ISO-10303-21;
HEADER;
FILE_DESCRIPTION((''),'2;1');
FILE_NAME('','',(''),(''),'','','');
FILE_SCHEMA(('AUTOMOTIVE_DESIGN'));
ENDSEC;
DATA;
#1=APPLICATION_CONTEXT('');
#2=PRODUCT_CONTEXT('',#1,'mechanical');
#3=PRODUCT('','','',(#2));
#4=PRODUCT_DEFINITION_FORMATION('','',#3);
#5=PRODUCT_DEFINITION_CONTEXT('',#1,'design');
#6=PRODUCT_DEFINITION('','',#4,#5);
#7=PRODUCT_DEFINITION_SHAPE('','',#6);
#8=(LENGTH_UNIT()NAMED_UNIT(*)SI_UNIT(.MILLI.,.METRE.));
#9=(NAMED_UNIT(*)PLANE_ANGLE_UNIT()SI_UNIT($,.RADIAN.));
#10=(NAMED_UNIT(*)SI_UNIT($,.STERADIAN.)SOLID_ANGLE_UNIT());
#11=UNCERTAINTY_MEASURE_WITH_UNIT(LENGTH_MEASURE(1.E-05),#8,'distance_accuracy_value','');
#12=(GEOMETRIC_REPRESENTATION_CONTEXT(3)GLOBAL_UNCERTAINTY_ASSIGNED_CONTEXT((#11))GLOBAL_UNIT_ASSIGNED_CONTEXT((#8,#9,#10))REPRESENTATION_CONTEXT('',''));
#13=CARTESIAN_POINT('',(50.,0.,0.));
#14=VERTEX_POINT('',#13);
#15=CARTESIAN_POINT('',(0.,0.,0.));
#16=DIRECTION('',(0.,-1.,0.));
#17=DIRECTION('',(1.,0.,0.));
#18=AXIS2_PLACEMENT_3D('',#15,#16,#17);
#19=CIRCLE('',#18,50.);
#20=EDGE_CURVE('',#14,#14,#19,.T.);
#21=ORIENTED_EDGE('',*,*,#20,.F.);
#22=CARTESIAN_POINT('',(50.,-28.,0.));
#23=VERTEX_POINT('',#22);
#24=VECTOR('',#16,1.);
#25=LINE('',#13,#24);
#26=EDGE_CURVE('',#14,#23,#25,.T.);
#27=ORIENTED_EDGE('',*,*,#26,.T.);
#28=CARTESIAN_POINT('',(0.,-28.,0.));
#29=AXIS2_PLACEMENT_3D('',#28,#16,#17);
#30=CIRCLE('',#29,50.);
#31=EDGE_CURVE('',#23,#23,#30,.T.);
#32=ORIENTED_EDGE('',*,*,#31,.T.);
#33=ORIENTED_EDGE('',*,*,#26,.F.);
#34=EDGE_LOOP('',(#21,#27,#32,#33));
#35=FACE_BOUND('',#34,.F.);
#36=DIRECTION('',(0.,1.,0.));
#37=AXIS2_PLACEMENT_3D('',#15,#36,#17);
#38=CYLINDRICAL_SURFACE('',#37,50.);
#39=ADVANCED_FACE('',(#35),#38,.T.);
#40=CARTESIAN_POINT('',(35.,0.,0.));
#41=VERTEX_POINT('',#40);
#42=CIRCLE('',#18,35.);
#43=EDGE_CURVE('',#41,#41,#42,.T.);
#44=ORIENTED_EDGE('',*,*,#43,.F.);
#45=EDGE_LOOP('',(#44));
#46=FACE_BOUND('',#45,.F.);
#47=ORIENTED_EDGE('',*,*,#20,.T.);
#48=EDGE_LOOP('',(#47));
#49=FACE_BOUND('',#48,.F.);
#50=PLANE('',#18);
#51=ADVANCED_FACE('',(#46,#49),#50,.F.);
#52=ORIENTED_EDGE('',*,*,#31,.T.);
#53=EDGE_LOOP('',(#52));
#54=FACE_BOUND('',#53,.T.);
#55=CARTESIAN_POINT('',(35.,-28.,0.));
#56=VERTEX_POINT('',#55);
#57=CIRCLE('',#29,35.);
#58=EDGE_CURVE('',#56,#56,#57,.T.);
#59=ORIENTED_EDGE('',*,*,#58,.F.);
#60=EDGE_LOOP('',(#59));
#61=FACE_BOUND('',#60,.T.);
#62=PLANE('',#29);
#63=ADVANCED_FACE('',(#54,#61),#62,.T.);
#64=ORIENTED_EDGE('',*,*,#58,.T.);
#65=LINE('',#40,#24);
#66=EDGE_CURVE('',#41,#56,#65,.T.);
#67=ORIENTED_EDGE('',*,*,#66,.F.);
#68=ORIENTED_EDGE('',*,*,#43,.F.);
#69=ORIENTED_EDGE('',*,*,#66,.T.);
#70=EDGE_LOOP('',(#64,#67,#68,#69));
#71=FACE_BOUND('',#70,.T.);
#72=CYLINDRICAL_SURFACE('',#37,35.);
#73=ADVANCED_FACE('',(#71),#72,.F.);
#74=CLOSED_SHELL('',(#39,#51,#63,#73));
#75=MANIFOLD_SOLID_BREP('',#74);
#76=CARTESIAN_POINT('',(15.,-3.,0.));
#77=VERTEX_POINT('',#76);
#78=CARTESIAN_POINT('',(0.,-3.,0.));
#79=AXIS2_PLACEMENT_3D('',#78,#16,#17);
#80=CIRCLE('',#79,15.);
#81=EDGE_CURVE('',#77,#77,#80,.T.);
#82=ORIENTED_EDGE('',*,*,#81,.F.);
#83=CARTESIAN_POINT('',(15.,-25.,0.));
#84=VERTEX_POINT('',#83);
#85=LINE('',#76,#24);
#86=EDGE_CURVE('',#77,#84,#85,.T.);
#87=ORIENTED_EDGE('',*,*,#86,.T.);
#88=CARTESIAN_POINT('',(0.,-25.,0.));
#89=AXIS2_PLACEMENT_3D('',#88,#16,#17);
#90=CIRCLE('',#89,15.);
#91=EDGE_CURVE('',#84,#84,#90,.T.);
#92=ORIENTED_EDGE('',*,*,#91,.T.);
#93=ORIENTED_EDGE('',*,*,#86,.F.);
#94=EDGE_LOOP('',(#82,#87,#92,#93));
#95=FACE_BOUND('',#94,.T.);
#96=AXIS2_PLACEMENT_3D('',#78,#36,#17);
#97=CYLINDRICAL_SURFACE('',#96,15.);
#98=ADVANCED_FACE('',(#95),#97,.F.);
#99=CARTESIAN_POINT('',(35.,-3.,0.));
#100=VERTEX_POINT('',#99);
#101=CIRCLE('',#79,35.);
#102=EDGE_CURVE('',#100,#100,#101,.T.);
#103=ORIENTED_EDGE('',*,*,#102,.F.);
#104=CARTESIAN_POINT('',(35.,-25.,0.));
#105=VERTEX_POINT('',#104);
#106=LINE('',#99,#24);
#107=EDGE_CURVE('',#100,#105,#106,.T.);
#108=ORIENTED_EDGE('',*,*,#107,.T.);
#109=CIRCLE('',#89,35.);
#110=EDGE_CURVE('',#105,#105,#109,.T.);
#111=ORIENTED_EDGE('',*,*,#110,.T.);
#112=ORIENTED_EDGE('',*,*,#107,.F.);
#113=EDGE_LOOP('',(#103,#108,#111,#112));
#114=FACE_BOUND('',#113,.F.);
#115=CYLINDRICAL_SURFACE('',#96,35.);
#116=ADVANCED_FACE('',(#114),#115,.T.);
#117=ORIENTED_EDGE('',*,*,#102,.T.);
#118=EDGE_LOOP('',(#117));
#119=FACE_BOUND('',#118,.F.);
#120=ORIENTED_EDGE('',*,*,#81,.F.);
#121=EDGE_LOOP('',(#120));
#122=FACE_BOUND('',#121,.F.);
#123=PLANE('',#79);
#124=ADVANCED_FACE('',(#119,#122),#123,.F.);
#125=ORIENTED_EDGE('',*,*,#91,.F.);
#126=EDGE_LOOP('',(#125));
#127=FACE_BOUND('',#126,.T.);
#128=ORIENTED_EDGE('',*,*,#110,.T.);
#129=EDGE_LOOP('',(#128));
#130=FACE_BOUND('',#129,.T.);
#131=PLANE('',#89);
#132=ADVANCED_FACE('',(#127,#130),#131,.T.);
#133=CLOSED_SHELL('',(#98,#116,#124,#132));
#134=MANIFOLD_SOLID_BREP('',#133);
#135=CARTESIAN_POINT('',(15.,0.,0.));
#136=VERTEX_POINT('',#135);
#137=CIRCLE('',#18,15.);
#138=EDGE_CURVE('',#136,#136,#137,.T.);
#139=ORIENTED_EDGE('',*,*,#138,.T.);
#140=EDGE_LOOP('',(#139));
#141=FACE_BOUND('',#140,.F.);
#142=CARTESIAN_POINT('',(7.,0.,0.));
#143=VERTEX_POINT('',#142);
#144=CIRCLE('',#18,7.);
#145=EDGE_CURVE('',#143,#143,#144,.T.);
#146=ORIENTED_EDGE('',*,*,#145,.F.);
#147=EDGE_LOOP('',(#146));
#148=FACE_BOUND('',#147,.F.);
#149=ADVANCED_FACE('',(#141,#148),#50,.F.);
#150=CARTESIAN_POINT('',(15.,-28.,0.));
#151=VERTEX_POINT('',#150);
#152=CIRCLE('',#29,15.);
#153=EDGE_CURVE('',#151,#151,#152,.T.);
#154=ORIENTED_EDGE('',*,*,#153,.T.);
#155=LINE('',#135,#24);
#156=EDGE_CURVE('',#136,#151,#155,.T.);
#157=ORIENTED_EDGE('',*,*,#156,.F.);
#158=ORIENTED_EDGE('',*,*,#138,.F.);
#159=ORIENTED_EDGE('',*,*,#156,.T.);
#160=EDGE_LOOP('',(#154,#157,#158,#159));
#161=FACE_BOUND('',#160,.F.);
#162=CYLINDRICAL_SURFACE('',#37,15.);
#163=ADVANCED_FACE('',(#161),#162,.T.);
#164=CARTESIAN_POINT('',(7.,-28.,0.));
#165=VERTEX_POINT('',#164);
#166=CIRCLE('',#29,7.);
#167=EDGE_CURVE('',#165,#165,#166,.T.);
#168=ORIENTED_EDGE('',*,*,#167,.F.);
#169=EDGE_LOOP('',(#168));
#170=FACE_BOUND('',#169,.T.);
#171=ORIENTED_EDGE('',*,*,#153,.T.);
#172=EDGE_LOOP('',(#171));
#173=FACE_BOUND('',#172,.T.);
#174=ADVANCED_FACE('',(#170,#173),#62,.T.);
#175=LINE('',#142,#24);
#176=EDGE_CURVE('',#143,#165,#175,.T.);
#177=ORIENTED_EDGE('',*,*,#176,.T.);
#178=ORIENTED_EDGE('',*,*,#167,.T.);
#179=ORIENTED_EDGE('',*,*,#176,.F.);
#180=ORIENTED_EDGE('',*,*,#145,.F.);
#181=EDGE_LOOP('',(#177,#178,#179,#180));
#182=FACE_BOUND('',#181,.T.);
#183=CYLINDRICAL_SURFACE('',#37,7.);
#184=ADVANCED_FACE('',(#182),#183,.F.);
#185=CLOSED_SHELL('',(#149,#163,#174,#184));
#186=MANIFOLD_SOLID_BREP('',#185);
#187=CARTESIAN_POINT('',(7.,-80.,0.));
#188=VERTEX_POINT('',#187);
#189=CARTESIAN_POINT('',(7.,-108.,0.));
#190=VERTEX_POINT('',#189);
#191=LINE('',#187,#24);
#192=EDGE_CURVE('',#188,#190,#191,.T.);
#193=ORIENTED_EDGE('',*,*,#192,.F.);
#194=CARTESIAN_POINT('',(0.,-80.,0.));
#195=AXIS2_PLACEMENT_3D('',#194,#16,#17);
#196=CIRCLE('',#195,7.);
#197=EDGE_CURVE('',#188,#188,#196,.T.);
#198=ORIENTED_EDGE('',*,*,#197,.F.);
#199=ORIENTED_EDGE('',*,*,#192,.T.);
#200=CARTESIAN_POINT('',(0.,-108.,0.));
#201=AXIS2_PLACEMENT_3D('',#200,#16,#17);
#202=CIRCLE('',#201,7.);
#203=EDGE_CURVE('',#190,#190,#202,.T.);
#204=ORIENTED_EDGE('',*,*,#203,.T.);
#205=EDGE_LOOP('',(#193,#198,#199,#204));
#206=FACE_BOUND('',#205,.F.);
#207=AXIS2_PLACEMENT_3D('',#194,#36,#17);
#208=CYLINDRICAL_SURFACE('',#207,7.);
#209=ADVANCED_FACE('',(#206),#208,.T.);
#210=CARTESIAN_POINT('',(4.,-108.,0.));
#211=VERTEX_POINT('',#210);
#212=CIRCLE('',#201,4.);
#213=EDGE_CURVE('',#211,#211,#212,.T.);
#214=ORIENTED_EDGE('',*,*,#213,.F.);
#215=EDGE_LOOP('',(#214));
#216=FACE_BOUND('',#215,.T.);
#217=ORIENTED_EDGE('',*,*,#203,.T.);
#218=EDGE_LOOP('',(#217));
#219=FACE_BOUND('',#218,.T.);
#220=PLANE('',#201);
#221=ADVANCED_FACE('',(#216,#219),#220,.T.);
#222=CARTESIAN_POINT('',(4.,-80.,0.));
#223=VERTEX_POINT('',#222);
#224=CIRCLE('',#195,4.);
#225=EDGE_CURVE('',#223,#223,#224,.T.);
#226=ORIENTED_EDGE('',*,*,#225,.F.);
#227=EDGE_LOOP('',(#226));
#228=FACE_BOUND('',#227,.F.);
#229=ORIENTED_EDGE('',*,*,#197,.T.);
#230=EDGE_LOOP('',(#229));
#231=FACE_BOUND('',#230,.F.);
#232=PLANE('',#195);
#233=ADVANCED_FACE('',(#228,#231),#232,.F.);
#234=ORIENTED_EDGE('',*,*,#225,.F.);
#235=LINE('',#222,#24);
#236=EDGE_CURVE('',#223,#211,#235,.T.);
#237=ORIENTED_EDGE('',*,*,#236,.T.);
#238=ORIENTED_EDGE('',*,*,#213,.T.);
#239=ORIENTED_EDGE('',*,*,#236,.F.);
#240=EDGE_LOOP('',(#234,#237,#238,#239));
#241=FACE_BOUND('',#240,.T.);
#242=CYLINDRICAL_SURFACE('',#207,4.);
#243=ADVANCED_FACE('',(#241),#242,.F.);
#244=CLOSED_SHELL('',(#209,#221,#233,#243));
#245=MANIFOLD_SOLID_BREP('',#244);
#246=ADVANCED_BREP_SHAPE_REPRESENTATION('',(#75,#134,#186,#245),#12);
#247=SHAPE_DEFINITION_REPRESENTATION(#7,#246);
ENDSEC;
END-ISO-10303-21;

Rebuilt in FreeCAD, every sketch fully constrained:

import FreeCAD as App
import Part
import Sketcher

V = App.Vector
Q = App.Units.Quantity

doc = App.newDocument("Part")
body = doc.addObject("PartDesign::Body", "Body")

# Sketch on XZ plane
sketch1 = body.newObject("Sketcher::SketchObject", "Sketch")
sketch1.AttachmentSupport = (doc.getObject("XZ_Plane"), [""])
sketch1.MapMode = "FlatFace"
sketch1.addGeometry(Part.Circle(V(0, 0, 0), V(0, 0, 1), 15), False)
sketch1.addGeometry(Part.Circle(V(0, 0, 0), V(0, 0, 1), 7), False)
sketch1.addConstraint(Sketcher.Constraint("Coincident", 0, 3, -1, 1))
sketch1.addConstraint(Sketcher.Constraint("Coincident", 1, 3, -1, 1))
sketch1.addConstraint(Sketcher.Constraint("Diameter", 0, Q("30 mm")))
sketch1.addConstraint(Sketcher.Constraint("Diameter", 1, Q("14 mm")))
pad1 = body.newObject("PartDesign::Pad", "Pad")
pad1.Profile = sketch1
pad1.Length = 28
body2 = doc.addObject("PartDesign::Body", "Body001")

# Sketch on XZ plane
sketch2 = body2.newObject("Sketcher::SketchObject", "Sketch001")
sketch2.AttachmentSupport = (doc.getObject("XZ_Plane001"), [""])
sketch2.MapMode = "FlatFace"
sketch2.addGeometry(Part.Circle(V(0, 0, 0), V(0, 0, 1), 50), False)
sketch2.addGeometry(Part.Circle(V(0, 0, 0), V(0, 0, 1), 35), False)
sketch2.addConstraint(Sketcher.Constraint("Coincident", 0, 3, -1, 1))
sketch2.addConstraint(Sketcher.Constraint("Coincident", 1, 3, -1, 1))
sketch2.addConstraint(Sketcher.Constraint("Diameter", 0, Q("100 mm")))
sketch2.addConstraint(Sketcher.Constraint("Diameter", 1, Q("70 mm")))
pad2 = body2.newObject("PartDesign::Pad", "Pad001")
pad2.Profile = sketch2
pad2.Length = 28
body3 = doc.addObject("PartDesign::Body", "Body002")

# Sketch on XZ plane
sketch3 = body3.newObject("Sketcher::SketchObject", "Sketch002")
sketch3.AttachmentSupport = (doc.getObject("XZ_Plane002"), [""])
sketch3.MapMode = "FlatFace"
sketch3.AttachmentOffset = App.Placement(V(0, 0, 3), App.Rotation())
sketch3.addGeometry(Part.Circle(V(0, 0, 0), V(0, 0, 1), 35), False)
sketch3.addGeometry(Part.Circle(V(0, 0, 0), V(0, 0, 1), 15), False)
sketch3.addConstraint(Sketcher.Constraint("Coincident", 0, 3, -1, 1))
sketch3.addConstraint(Sketcher.Constraint("Coincident", 1, 3, -1, 1))
sketch3.addConstraint(Sketcher.Constraint("Diameter", 0, Q("70 mm")))
sketch3.addConstraint(Sketcher.Constraint("Diameter", 1, Q("30 mm")))
pad3 = body3.newObject("PartDesign::Pad", "Pad002")
pad3.Profile = sketch3
pad3.Length = 22
body4 = doc.addObject("PartDesign::Body", "Body003")

# Sketch on XZ plane
sketch4 = body4.newObject("Sketcher::SketchObject", "Sketch003")
sketch4.AttachmentSupport = (doc.getObject("XZ_Plane003"), [""])
sketch4.MapMode = "FlatFace"
sketch4.AttachmentOffset = App.Placement(V(0, 0, 80), App.Rotation())
sketch4.addGeometry(Part.Circle(V(0, 0, 0), V(0, 0, 1), 7), False)
sketch4.addGeometry(Part.Circle(V(0, 0, 0), V(0, 0, 1), 4), False)
sketch4.addConstraint(Sketcher.Constraint("Coincident", 0, 3, -1, 1))
sketch4.addConstraint(Sketcher.Constraint("Coincident", 1, 3, -1, 1))
sketch4.addConstraint(Sketcher.Constraint("Diameter", 0, Q("14 mm")))
sketch4.addConstraint(Sketcher.Constraint("Diameter", 1, Q("8 mm")))
pad4 = body4.newObject("PartDesign::Pad", "Pad003")
pad4.Profile = sketch4
pad4.Length = 28

doc.recompute()
